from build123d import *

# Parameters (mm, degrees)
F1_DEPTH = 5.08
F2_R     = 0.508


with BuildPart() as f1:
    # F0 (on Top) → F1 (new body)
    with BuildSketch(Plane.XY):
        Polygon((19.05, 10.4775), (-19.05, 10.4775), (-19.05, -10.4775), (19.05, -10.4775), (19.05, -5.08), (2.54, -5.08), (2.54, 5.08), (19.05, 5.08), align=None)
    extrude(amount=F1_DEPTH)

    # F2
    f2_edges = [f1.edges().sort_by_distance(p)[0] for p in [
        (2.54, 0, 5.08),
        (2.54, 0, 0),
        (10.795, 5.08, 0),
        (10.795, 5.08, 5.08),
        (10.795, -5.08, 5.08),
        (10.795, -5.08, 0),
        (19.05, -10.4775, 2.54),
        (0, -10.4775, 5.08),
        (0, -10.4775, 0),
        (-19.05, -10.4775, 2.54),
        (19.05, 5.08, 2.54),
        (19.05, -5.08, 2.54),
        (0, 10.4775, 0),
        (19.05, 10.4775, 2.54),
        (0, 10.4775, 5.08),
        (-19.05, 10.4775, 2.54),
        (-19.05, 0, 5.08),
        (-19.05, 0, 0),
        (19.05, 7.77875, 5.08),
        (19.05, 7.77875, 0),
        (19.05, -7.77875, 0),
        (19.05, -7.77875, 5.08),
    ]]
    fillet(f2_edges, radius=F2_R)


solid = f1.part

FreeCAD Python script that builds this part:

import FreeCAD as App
import Part
import Sketcher
Q = App.Units.Quantity


def edges_at(feature, points):
    """Names of the edges that pass closest to the given points."""
    edges = feature.Shape.Edges
    near = lambda p: min(range(len(edges)), key=lambda i: edges[i].distToShape(Part.Vertex(*p))[0])
    return sorted({f"Edge{near(p) + 1}" for p in points})


def add_polygon(sketch, points):
    """Adds a closed chain of lines whose ends are joined by coincident constraints."""
    first, n = sketch.GeometryCount, len(points)
    for a, b in zip(points, points[1:] + points[:1]):
        sketch.addGeometry(Part.LineSegment(App.Vector(*a, 0), App.Vector(*b, 0)), False)
    for i in range(n):
        sketch.addConstraint(Sketcher.Constraint("Coincident", first + i, 2, first + (i + 1) % n, 1))

doc = App.newDocument("Part")
params = doc.addObject("Spreadsheet::Sheet", "Params")
for row, (alias, value) in enumerate([
    ("sketch1_width", "1.5 in"),
    ("sketch1_height", "0.4 in"),
    ("sketch1_width2", "0.65 in"),
    ("sketch1_height2", "0.825 in"),
    ("pad1_length", "0.2 in"),
    ("fillet_radius", "0.02 in"),
], start=1):
    params.set(f"A{row}", alias)
    params.set(f"B{row}", "=" + value)
    params.setAlias(f"B{row}", alias)

body = doc.addObject("PartDesign::Body", "Body")

sketch1 = body.newObject("Sketcher::SketchObject", "Sketch")
sketch1.AttachmentSupport = (doc.getObject("XY_Plane"), [""])
sketch1.MapMode = "FlatFace"
add_polygon(sketch1, [(19, 10), (-19, 10), (-19, -10), (19, -10), (19, -5), (3, -5), (3, 5), (19, 5)])
sketch1.addConstraint([
    Sketcher.Constraint("Horizontal", 0),
    Sketcher.Constraint("Vertical", 1),
    Sketcher.Constraint("Horizontal", 2),
    Sketcher.Constraint("Vertical", 3),
    Sketcher.Constraint("Horizontal", 4),
    Sketcher.Constraint("Vertical", 5),
    Sketcher.Constraint("Horizontal", 6),
    Sketcher.Constraint("Vertical", 7),
    Sketcher.Constraint("Symmetric", 0, 2, 2, 2, -1, 1),
    Sketcher.Constraint("Symmetric", 3, 2, 6, 2, -1),
    Sketcher.Constraint("DistanceX", 0, 2, 0, 1, Q("1.5 in")),
    Sketcher.Constraint("DistanceY", 5, 1, 5, 2, Q("0.4 in")),
    Sketcher.Constraint("DistanceX", 4, 2, 4, 1, Q("0.65 in")),
    Sketcher.Constraint("DistanceY", 1, 2, 1, 1, Q("0.825 in")),
])
sketch1.setExpression("Constraints[18]", "Params.sketch1_width")
sketch1.setExpression("Constraints[19]", "Params.sketch1_height")
sketch1.setExpression("Constraints[20]", "Params.sketch1_width2")
sketch1.setExpression("Constraints[21]", "Params.sketch1_height2")
pad1 = body.newObject("PartDesign::Pad", "Pad")
pad1.Profile = sketch1
pad1.setExpression("Length", "Params.pad1_length")
doc.recompute()

fillet = body.newObject("PartDesign::Fillet", "Fillet")
fillet.Base = (pad1, edges_at(pad1, [
    (2.54, 0, 5.08),
    (2.54, 0, 0),
    (10.795, 5.08, 0),
    (10.795, 5.08, 5.08),
    (10.795, -5.08, 5.08),
    (10.795, -5.08, 0),
    (19.05, -10.477, 2.54),
    (0, -10.477, 5.08),
    (0, -10.477, 0),
    (-19.05, -10.477, 2.54),
    (19.05, 5.08, 2.54),
    (19.05, -5.08, 2.54),
    (0, 10.477, 0),
    (19.05, 10.477, 2.54),
    (0, 10.477, 5.08),
    (-19.05, 10.477, 2.54),
    (-19.05, 0, 5.08),
    (-19.05, 0, 0),
    (19.05, 7.779, 5.08),
    (19.05, 7.779, 0),
    (19.05, -7.779, 0),
    (19.05, -7.779, 5.08),
]))
fillet.setExpression("Radius", "Params.fillet_radius")

doc.recompute()
